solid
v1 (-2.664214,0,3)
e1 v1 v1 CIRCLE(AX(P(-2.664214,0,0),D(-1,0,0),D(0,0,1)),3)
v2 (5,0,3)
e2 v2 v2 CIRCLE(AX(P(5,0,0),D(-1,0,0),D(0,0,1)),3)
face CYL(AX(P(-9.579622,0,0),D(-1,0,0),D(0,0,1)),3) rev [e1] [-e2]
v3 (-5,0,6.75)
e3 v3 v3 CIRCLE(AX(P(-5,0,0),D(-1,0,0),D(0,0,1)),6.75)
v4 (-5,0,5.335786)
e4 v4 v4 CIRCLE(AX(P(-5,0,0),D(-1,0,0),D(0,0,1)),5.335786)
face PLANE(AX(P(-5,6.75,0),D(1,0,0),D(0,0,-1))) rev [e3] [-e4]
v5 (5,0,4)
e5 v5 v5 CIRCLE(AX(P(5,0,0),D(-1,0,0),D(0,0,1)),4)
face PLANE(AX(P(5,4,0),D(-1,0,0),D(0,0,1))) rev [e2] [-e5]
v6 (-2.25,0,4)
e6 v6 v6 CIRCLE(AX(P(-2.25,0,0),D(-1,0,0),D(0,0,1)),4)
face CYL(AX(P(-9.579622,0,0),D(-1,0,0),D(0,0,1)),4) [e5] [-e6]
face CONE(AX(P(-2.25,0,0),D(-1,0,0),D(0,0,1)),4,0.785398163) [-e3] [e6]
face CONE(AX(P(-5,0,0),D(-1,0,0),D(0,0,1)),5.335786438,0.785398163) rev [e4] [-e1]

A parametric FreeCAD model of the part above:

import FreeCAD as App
import Part
import Sketcher

V = App.Vector
Q = App.Units.Quantity


def add_polygon(sketch, points):
    """Adds a closed chain of lines whose ends are joined by coincident constraints."""
    first, n = sketch.GeometryCount, len(points)
    for a, b in zip(points, points[1:] + points[:1]):
        sketch.addGeometry(Part.LineSegment(App.Vector(*a, 0), App.Vector(*b, 0)), False)
    for i in range(n):
        sketch.addConstraint(Sketcher.Constraint("Coincident", first + i, 2, first + (i + 1) % n, 1))

doc = App.newDocument("Part")
body = doc.addObject("PartDesign::Body", "Body")

sketch1 = body.newObject("Sketcher::SketchObject", "Sketch")
sketch1.AttachmentSupport = (doc.getObject("XY_Plane"), [""])
sketch1.MapMode = "FlatFace"
add_polygon(sketch1, [(5, 4), (-2.2, 4), (-5, 6.8), (-5, 5.3), (-2.7, 3), (5, 3)])
sketch1.addConstraint(Sketcher.Constraint("Horizontal", 0))
sketch1.addConstraint(Sketcher.Constraint("Vertical", 2))
sketch1.addConstraint(Sketcher.Constraint("Horizontal", 4))
sketch1.addConstraint(Sketcher.Constraint("Vertical", 5))
sketch1.addConstraint(Sketcher.Constraint("Parallel", 1, 3))
sketch1.addConstraint(Sketcher.Constraint("DistanceY", 5, 1, 5, 2, Q("1 mm")))
sketch1.addConstraint(Sketcher.Constraint("Angle", 1, Q("135 deg")))
sketch1.addConstraint(Sketcher.Constraint("DistanceY", -1, 1, 0, 2, Q("4 mm")))
sketch1.addConstraint(Sketcher.Constraint("DistanceX", 1, 2, -1, 1, Q("5 mm")))
sketch1.addConstraint(Sketcher.Constraint("DistanceX", -1, 1, 4, 2, Q("5 mm")))
sketch1.addConstraint(Sketcher.Constraint("DistanceX", 0, 2, 0, 1, Q("7.25 mm")))
sketch1.addConstraint(Sketcher.Constraint("Distance", 3, Q("3.303301 mm")))
revolution = body.newObject("PartDesign::Revolution", "Revolution")
revolution.Profile = sketch1
revolution.ReferenceAxis = (sketch1, ["H_Axis"])
revolution.Angle = 360

doc.recompute()
